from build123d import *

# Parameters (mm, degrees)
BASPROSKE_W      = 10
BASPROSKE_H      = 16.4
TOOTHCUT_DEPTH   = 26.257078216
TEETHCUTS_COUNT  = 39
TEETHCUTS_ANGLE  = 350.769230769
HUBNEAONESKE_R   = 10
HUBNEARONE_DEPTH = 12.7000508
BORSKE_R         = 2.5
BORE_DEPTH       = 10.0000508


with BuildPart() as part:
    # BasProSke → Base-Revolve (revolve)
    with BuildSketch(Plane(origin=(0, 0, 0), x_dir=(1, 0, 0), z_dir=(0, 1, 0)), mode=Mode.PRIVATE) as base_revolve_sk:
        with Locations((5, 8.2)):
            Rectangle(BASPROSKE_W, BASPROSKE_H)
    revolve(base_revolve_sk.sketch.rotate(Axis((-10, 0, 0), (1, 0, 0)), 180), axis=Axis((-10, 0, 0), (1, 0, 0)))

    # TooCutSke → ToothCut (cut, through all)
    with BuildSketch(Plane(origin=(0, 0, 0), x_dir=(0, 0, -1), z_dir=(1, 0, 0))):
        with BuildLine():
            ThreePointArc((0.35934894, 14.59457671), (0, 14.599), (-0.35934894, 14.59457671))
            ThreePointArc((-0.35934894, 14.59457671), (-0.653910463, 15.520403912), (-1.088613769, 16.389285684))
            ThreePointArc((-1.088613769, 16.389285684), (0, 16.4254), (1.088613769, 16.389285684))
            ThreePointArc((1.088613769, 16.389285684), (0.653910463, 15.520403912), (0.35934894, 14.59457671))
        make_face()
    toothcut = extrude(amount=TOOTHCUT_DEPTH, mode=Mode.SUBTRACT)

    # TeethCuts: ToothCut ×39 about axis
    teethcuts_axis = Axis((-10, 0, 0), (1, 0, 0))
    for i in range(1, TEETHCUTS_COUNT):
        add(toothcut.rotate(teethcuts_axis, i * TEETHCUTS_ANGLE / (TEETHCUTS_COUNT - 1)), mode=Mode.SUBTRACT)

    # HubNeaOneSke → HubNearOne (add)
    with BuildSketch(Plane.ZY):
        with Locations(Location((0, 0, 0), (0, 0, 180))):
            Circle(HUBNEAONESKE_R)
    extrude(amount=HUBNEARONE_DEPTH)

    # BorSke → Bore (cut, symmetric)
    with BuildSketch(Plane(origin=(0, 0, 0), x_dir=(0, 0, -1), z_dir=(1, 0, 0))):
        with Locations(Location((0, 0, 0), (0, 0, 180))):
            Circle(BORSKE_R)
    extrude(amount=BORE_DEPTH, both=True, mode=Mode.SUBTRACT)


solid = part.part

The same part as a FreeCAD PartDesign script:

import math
import FreeCAD as App
import Part
import Sketcher
from FreeCAD import Vector

doc = App.newDocument("Part")
params = doc.addObject("Spreadsheet::Sheet", "Params")
for row, (alias, value) in enumerate([
    ("sketch1_width", "10 mm"),
    ("sketch1_height", "16.4 mm"),
    ("revolution_angle", "360 deg"),
    ("sketch2_radius", "6.24 mm"),
    ("sketch3_diameter", "20 mm"),
    ("pad1_length", "12.700051 mm"),
    ("sketch4_diameter", "5 mm"),
    ("pocket2_length", "20.000102 mm"),
], start=1):
    params.set(f"A{row}", alias)
    params.set(f"B{row}", "=" + value)
    params.setAlias(f"B{row}", alias)

body = doc.addObject("PartDesign::Body", "Body")

sketch1 = body.newObject("Sketcher::SketchObject", "Sketch")
sketch1.AttachmentSupport = (doc.getObject("XZ_Plane"), [""])
sketch1.MapMode = "FlatFace"
sketch1.addGeometry([
    Part.LineSegment(Vector(0, -16, 0), Vector(0, 0, 0)),
    Part.LineSegment(Vector(0, 0, 0), Vector(10, 0, 0)),
    Part.LineSegment(Vector(10, 0, 0), Vector(10, -16, 0)),
    Part.LineSegment(Vector(10, -16, 0), Vector(0, -16, 0)),
], False)
sketch1.addConstraint([
    Sketcher.Constraint("Coincident", 0, 2, 1, 1),
    Sketcher.Constraint("Coincident", 1, 2, 2, 1),
    Sketcher.Constraint("Coincident", 2, 2, 3, 1),
    Sketcher.Constraint("Coincident", 3, 2, 0, 1),
    Sketcher.Constraint("Vertical", 0),
    Sketcher.Constraint("Horizontal", 1),
    Sketcher.Constraint("Vertical", 2),
    Sketcher.Constraint("Horizontal", 3),
    Sketcher.Constraint("Coincident", 0, 2, -1, 1),
    Sketcher.Constraint("DistanceX", 1, 1, 1, 2, 10.0),
    Sketcher.Constraint("DistanceY", 0, 1, 0, 2, 16.4),
])
sketch1.setExpression("Constraints[9]", "Params.sketch1_width")
sketch1.setExpression("Constraints[10]", "Params.sketch1_height")
revolution = body.newObject("PartDesign::Revolution", "Revolution")
revolution.Profile = sketch1
revolution.ReferenceAxis = (sketch1, ["H_Axis"])
revolution.setExpression("Angle", "Params.revolution_angle")

sketch2 = body.newObject("Sketcher::SketchObject", "Sketch001")
sketch2.AttachmentSupport = (doc.getObject("YZ_Plane"), [""])
sketch2.MapMode = "FlatFace"
sketch2.addGeometry([
    Part.ArcOfCircle(Part.Circle(Vector(0, 0, 0), Vector(0, 0, 1), 14.6), math.radians(-1.41), math.radians(1.41)),
    Part.ArcOfCircle(Part.Circle(Vector(13.2, -6.4, 0), Vector(0, 0, 1), 6.2), math.radians(58.96), math.radians(76.82)),
    Part.ArcOfCircle(Part.Circle(Vector(0, 0, 0), Vector(0, 0, 1), 16.4), math.radians(-3.8), math.radians(3.8)),
    Part.ArcOfCircle(Part.Circle(Vector(13.2, 6.4, 0), Vector(0, 0, 1), 6.2), math.radians(-76.82), math.radians(-58.96)),
], False)
sketch2.addConstraint([
    Sketcher.Constraint("Coincident", 0, 1, 1, 2),
    Sketcher.Constraint("Coincident", 1, 1, 2, 1),
    Sketcher.Constraint("Coincident", 2, 2, 3, 2),
    Sketcher.Constraint("Coincident", 3, 1, 0, 2),
    Sketcher.Constraint("Coincident", 0, 3, -1, 1),
    Sketcher.Constraint("Coincident", 2, 3, -1, 1),
    Sketcher.Constraint("Equal", 1, 3),
    Sketcher.Constraint("Symmetric", 1, 3, 3, 3, -1),
    Sketcher.Constraint("Radius", 1, 6.24),
    Sketcher.Constraint("Radius", 0, 14.599001),
    Sketcher.Constraint("Radius", 2, 16.4254),
    Sketcher.Constraint("DistanceY", 0, 1, -1, 1, 0.359349),
    Sketcher.Constraint("DistanceX", 1, 3, 0, 1, 1.42322),
])
sketch2.setExpression("Constraints[8]", "Params.sketch2_radius")
pocket1 = body.newObject("PartDesign::Pocket", "Pocket")
pocket1.Profile = sketch2
pocket1.Type = "ThroughAll"
pocket1.Reversed = True
doc.recompute()

polarpattern = body.newObject("PartDesign::PolarPattern", "PolarPattern")
polarpattern.Originals = [pocket1]
polarpattern.Axis = (doc.getObject("X_Axis"), [""])
polarpattern.Angle = 360
polarpattern.Occurrences = 39
body.Tip = polarpattern

sketch3 = body.newObject("Sketcher::SketchObject", "Sketch002")
sketch3.AttachmentSupport = (doc.getObject("YZ_Plane"), [""])
sketch3.MapMode = "FlatFace"
sketch3.addGeometry(Part.Circle(Vector(0, 0, 0), Vector(0, 0, 1), 10), False)
sketch3.addConstraint([
    Sketcher.Constraint("Coincident", 0, 3, -1, 1),
    Sketcher.Constraint("Diameter", 0, 20.0),
])
sketch3.setExpression("Constraints[1]", "Params.sketch3_diameter")
pad1 = body.newObject("PartDesign::Pad", "Pad")
pad1.Profile = sketch3
pad1.setExpression("Length", "Params.pad1_length")
pad1.Reversed = True

sketch4 = body.newObject("Sketcher::SketchObject", "Sketch003")
sketch4.AttachmentSupport = (doc.getObject("YZ_Plane"), [""])
sketch4.MapMode = "FlatFace"
sketch4.addGeometry(Part.Circle(Vector(0, 0, 0), Vector(0, 0, 1), 2.5), False)
sketch4.addConstraint([
    Sketcher.Constraint("Coincident", 0, 3, -1, 1),
    Sketcher.Constraint("Diameter", 0, 5.0),
])
sketch4.setExpression("Constraints[1]", "Params.sketch4_diameter")
pocket2 = body.newObject("PartDesign::Pocket", "Pocket001")
pocket2.Profile = sketch4
pocket2.setExpression("Length", "Params.pocket2_length")
pocket2.Midplane = True

doc.recompute()
